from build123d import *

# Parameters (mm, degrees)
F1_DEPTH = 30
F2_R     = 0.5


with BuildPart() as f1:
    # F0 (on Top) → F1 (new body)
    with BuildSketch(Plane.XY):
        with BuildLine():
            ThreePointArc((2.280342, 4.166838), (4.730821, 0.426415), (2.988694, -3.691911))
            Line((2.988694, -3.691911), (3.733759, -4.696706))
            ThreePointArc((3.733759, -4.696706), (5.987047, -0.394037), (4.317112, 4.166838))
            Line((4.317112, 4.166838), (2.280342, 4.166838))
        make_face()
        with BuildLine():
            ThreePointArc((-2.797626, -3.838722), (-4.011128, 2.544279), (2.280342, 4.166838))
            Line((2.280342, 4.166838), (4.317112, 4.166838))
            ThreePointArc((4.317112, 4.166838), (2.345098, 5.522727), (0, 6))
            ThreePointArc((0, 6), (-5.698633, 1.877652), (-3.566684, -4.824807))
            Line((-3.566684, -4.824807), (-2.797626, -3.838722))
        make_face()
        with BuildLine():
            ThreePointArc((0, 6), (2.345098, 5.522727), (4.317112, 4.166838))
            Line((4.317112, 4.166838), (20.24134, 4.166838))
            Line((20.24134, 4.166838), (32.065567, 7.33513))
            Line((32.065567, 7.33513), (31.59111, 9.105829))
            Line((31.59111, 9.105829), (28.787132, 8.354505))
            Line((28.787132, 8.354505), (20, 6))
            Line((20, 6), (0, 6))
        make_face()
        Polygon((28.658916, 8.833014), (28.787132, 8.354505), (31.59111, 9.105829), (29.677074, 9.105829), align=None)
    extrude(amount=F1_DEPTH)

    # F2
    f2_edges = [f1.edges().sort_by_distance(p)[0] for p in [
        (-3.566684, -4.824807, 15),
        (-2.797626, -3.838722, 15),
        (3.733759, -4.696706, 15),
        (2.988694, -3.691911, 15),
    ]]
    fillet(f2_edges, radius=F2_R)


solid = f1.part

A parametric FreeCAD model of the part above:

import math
import FreeCAD as App
import Part
import Sketcher

V = App.Vector
Q = App.Units.Quantity


def edges_at(feature, points):
    """Names of the edges that pass closest to the given points."""
    edges = feature.Shape.Edges
    near = lambda p: min(range(len(edges)), key=lambda i: edges[i].distToShape(Part.Vertex(*p))[0])
    return sorted({f"Edge{near(p) + 1}" for p in points})

doc = App.newDocument("Part")
body = doc.addObject("PartDesign::Body", "Body")

sketch1 = body.newObject("Sketcher::SketchObject", "Sketch")
sketch1.AttachmentSupport = (doc.getObject("XY_Plane"), [""])
sketch1.MapMode = "FlatFace"
sketch1.addGeometry(Part.ArcOfCircle(Part.Circle(V(0, 0, 0), V(0, 0, 1), 4.75), math.radians(-51), math.radians(61)), False)
sketch1.addGeometry(Part.LineSegment(V(2.99, -3.69, 0), V(3.73, -4.7, 0)), False)
sketch1.addGeometry(Part.ArcOfCircle(Part.Circle(V(0, 0, 0), V(0, 0, 1), 6), math.radians(-52), math.radians(44)), False)
sketch1.addGeometry(Part.LineSegment(V(4.32, 4.17, 0), V(20.24, 4.17, 0)), False)
sketch1.addGeometry(Part.LineSegment(V(20.24, 4.17, 0), V(32.07, 7.34, 0)), False)
sketch1.addGeometry(Part.LineSegment(V(32.07, 7.34, 0), V(31.59, 9.11, 0)), False)
sketch1.addGeometry(Part.LineSegment(V(31.59, 9.11, 0), V(29.68, 9.11, 0)), False)
sketch1.addGeometry(Part.LineSegment(V(29.68, 9.11, 0), V(28.66, 8.83, 0)), False)
sketch1.addGeometry(Part.LineSegment(V(28.66, 8.83, 0), V(28.79, 8.35, 0)), False)
sketch1.addGeometry(Part.LineSegment(V(28.79, 8.35, 0), V(20, 6, 0)), False)
sketch1.addGeometry(Part.LineSegment(V(20, 6, 0), V(0, 6, 0)), False)
sketch1.addGeometry(Part.ArcOfCircle(Part.Circle(V(0, 0, 0), V(0, 0, 1), 6), math.radians(90), math.radians(234)), False)
sketch1.addGeometry(Part.LineSegment(V(-3.57, -4.82, 0), V(-2.8, -3.84, 0)), False)
sketch1.addGeometry(Part.ArcOfCircle(Part.Circle(V(0, 0, 0), V(0, 0, 1), 4.75), math.radians(61), math.radians(234)), False)
sketch1.addConstraint(Sketcher.Constraint("Coincident", 0, 1, 1, 1))
sketch1.addConstraint(Sketcher.Constraint("Coincident", 1, 2, 2, 1))
sketch1.addConstraint(Sketcher.Constraint("Coincident", 2, 2, 3, 1))
sketch1.addConstraint(Sketcher.Constraint("Coincident", 3, 2, 4, 1))
sketch1.addConstraint(Sketcher.Constraint("Coincident", 4, 2, 5, 1))
sketch1.addConstraint(Sketcher.Constraint("Coincident", 5, 2, 6, 1))
sketch1.addConstraint(Sketcher.Constraint("Coincident", 6, 2, 7, 1))
sketch1.addConstraint(Sketcher.Constraint("Coincident", 7, 2, 8, 1))
sketch1.addConstraint(Sketcher.Constraint("Coincident", 8, 2, 9, 1))
sketch1.addConstraint(Sketcher.Constraint("Coincident", 9, 2, 10, 1))
sketch1.addConstraint(Sketcher.Constraint("Tangent", 10, 2, 11, 1))
sketch1.addConstraint(Sketcher.Constraint("Coincident", 11, 2, 12, 1))
sketch1.addConstraint(Sketcher.Constraint("Coincident", 12, 2, 13, 2))
sketch1.addConstraint(Sketcher.Constraint("Tangent", 13, 1, 0, 2))
sketch1.addConstraint(Sketcher.Constraint("Horizontal", 3))
sketch1.addConstraint(Sketcher.Constraint("Horizontal", 6))
sketch1.addConstraint(Sketcher.Constraint("Horizontal", 10))
sketch1.addConstraint(Sketcher.Constraint("Coincident", 0, 3, -1, 1))
sketch1.addConstraint(Sketcher.Constraint("Coincident", 2, 3, -1, 1))
sketch1.addConstraint(Sketcher.Constraint("Coincident", 11, 3, -1, 1))
sketch1.addConstraint(Sketcher.Constraint("Equal", 2, 11))
sketch1.addConstraint(Sketcher.Constraint("Equal", 0, 13))
sketch1.addConstraint(Sketcher.Constraint("Perpendicular", 4, 5))
sketch1.addConstraint(Sketcher.Constraint("Perpendicular", 5, 7))
sketch1.addConstraint(Sketcher.Constraint("Perpendicular", 7, 8))
sketch1.addConstraint(Sketcher.Constraint("Perpendicular", 8, 9))
sketch1.addConstraint(Sketcher.Constraint("Horizontal", 3, 2, 13, 1))
sketch1.addConstraint(Sketcher.Constraint("Radius", 2, Q("6 mm")))
sketch1.addConstraint(Sketcher.Constraint("DistanceX", 10, 2, 10, 1, Q("20 mm")))
sketch1.addConstraint(Sketcher.Constraint("Angle", 4, Q("15 deg")))
sketch1.addConstraint(Sketcher.Constraint("Radius", 0, Q("4.75 mm")))
sketch1.addConstraint(Sketcher.Constraint("DistanceX", 3, 1, 3, 2, Q("15.924228 mm")))
sketch1.addConstraint(Sketcher.Constraint("DistanceY", 4, 2, 5, 2, Q("1.770699 mm")))
sketch1.addConstraint(Sketcher.Constraint("Distance", 4, Q("12.241341 mm")))
sketch1.addConstraint(Sketcher.Constraint("Distance", 8, Q("0.495389 mm")))
sketch1.addConstraint(Sketcher.Constraint("Distance", 9, Q("9.097108 mm")))
sketch1.addConstraint(Sketcher.Constraint("DistanceX", 6, 2, 6, 1, Q("1.914036 mm")))
sketch1.addConstraint(Sketcher.Constraint("DistanceY", 0, 1, -1, 1, Q("3.691911 mm")))
sketch1.addConstraint(Sketcher.Constraint("DistanceX", -1, 1, 1, 2, Q("3.733759 mm")))
sketch1.addConstraint(Sketcher.Constraint("DistanceX", 11, 2, 12, 2, Q("0.769058 mm")))
sketch1.addConstraint(Sketcher.Constraint("DistanceY", 12, 2, 2, 3, Q("3.838722 mm")))
pad1 = body.newObject("PartDesign::Pad", "Pad")
pad1.Profile = sketch1
pad1.Length = 30
doc.recompute()

fillet = body.newObject("PartDesign::Fillet", "Fillet")
fillet.Base = (pad1, edges_at(pad1, [
    (-3.567, -4.825, 15),
    (-2.798, -3.839, 15),
    (3.734, -4.697, 15),
    (2.989, -3.692, 15),
]))
fillet.Radius = 0.5

doc.recompute()
